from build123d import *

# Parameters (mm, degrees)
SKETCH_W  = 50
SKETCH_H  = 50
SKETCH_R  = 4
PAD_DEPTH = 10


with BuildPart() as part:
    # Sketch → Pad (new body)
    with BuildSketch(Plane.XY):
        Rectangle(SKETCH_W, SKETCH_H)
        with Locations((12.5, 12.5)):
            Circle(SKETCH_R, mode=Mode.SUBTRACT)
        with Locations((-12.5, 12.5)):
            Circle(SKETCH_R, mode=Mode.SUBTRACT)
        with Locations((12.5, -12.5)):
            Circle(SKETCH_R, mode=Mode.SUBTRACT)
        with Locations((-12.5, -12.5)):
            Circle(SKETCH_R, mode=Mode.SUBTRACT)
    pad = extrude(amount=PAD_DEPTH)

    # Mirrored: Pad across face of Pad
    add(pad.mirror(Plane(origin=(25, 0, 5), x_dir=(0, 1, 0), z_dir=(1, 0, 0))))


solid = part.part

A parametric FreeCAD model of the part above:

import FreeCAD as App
import Part
import Sketcher
Q = App.Units.Quantity


def add_polygon(sketch, points):
    """Adds a closed chain of lines whose ends are joined by coincident constraints."""
    first, n = sketch.GeometryCount, len(points)
    for a, b in zip(points, points[1:] + points[:1]):
        sketch.addGeometry(Part.LineSegment(App.Vector(*a, 0), App.Vector(*b, 0)), False)
    for i in range(n):
        sketch.addConstraint(Sketcher.Constraint("Coincident", first + i, 2, first + (i + 1) % n, 1))

doc = App.newDocument("Part")
body = doc.addObject("PartDesign::Body", "Body")

# Sketch on XY plane
sketch1 = body.newObject("Sketcher::SketchObject", "Sketch")
sketch1.AttachmentSupport = (doc.getObject("XY_Plane"), [""])
sketch1.MapMode = "FlatFace"
add_polygon(sketch1, [(-25, 25), (-25, -25), (25, -25), (25, 25)])  # lines 0-3
sketch1.addGeometry(Part.Circle(App.Vector(-12.5, -12.5, 0), App.Vector(0, 0, 1), 4), False)  # 4
sketch1.addGeometry(Part.Circle(App.Vector(12.5, -12.5, 0), App.Vector(0, 0, 1), 4), False)  # 5
sketch1.addGeometry(Part.Circle(App.Vector(-12.5, 12.5, 0), App.Vector(0, 0, 1), 4), False)  # 6
sketch1.addGeometry(Part.Circle(App.Vector(12.5, 12.5, 0), App.Vector(0, 0, 1), 4), False)  # 7
sketch1.addConstraint([
    Sketcher.Constraint("Vertical", 0),
    Sketcher.Constraint("Horizontal", 1),
    Sketcher.Constraint("Vertical", 2),
    Sketcher.Constraint("Horizontal", 3),
    Sketcher.Constraint("Equal", 4, 5),
    Sketcher.Constraint("Equal", 5, 6),
    Sketcher.Constraint("Equal", 6, 7),
    Sketcher.Constraint("Symmetric", 5, 3, 6, 3, -1, 1),
    Sketcher.Constraint("Symmetric", 4, 3, 7, 3, -1, 1),
    Sketcher.Constraint("Symmetric", 0, 2, 2, 2, -1, 1),
    Sketcher.Constraint("Symmetric", 4, 3, 5, 3, -2),
    Sketcher.Constraint("Equal", 3, 0),
    Sketcher.Constraint("Diameter", 4, Q("8 mm")),
    Sketcher.Constraint("DistanceX", 1, 1, 1, 2, Q("50 mm")),
    Sketcher.Constraint("DistanceX", 4, 3, 5, 3, Q("25 mm")),
    Sketcher.Constraint("DistanceY", 4, 3, 6, 3, Q("25 mm")),
])
pad1 = body.newObject("PartDesign::Pad", "Pad")
pad1.Profile = sketch1
pad1.Length = 10
doc.recompute()

datumplane = body.newObject("PartDesign::Plane", "DatumPlane")
datumplane.AttachmentSupport = (doc.getObject("YZ_Plane"), [""])
datumplane.MapMode = "FlatFace"
datumplane.AttachmentOffset = App.Placement(App.Vector(0, 0, 25), App.Rotation())
mirrored = body.newObject("PartDesign::Mirrored", "Mirrored")
mirrored.Originals = [pad1]
mirrored.MirrorPlane = (datumplane, [""])
body.Tip = mirrored

doc.recompute()
